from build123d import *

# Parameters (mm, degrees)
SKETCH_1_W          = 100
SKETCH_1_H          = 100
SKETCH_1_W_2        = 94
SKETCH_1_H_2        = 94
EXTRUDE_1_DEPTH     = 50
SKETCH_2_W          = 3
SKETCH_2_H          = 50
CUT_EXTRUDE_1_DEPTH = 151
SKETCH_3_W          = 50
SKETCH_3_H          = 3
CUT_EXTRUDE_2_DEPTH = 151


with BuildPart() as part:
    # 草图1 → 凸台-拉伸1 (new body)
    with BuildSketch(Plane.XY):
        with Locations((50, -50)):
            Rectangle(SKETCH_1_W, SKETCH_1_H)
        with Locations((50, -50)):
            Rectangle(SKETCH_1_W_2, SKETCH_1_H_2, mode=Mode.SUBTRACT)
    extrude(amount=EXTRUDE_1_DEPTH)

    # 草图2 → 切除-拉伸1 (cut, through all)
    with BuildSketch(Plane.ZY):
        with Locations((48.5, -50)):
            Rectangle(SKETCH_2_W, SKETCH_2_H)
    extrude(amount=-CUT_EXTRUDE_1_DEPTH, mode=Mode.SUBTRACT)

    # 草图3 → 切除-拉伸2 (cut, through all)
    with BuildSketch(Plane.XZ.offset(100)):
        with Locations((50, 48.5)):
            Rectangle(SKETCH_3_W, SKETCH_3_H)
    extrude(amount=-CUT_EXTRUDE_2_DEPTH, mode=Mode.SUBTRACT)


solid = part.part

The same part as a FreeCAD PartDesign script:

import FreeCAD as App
import Part
import Sketcher


def add_polygon(sketch, points):
    """Adds a closed chain of lines whose ends are joined by coincident constraints."""
    first, n = sketch.GeometryCount, len(points)
    for a, b in zip(points, points[1:] + points[:1]):
        sketch.addGeometry(Part.LineSegment(App.Vector(*a, 0), App.Vector(*b, 0)), False)
    for i in range(n):
        sketch.addConstraint(Sketcher.Constraint("Coincident", first + i, 2, first + (i + 1) % n, 1))

doc = App.newDocument("Part")
body = doc.addObject("PartDesign::Body", "Body")

# Sketch on XY plane
sketch1 = body.newObject("Sketcher::SketchObject", "Sketch")
sketch1.AttachmentSupport = (doc.getObject("XY_Plane"), [""])
sketch1.MapMode = "FlatFace"
add_polygon(sketch1, [(0, 0), (0, -100), (100, -100), (100, 0)])  # lines 0-3
add_polygon(sketch1, [(97, -97), (3, -97), (3, -3), (97, -3)])  # lines 4-7
sketch1.addConstraint([
    Sketcher.Constraint("Vertical", 0),
    Sketcher.Constraint("Horizontal", 1),
    Sketcher.Constraint("Vertical", 2),
    Sketcher.Constraint("Horizontal", 3),
    Sketcher.Constraint("Horizontal", 4),
    Sketcher.Constraint("Vertical", 5),
    Sketcher.Constraint("Horizontal", 6),
    Sketcher.Constraint("Vertical", 7),
    Sketcher.Constraint("Coincident", 3, 2, -1, 1),
    Sketcher.Constraint("Equal", 3, 0),
    Sketcher.Constraint("Equal", 6, 5),
    Sketcher.Constraint("DistanceX", 1, 1, 1, 2, 100.0),
    Sketcher.Constraint("DistanceX", 4, 2, 4, 1, 94.0),
    Sketcher.Constraint("DistanceX", -1, 1, 4, 2, 3.0),
    Sketcher.Constraint("DistanceY", 4, 2, -1, 1, 97.0),
])
pad1 = body.newObject("PartDesign::Pad", "Pad")
pad1.Profile = sketch1
pad1.Length = 50

# Sketch on YZ plane
sketch2 = body.newObject("Sketcher::SketchObject", "Sketch001")
sketch2.AttachmentSupport = (doc.getObject("YZ_Plane"), [""])
sketch2.MapMode = "FlatFace"
add_polygon(sketch2, [(-25, 47), (-75, 47), (-75, 50), (-25, 50)])  # lines 0-3
sketch2.addConstraint([
    Sketcher.Constraint("Horizontal", 0),
    Sketcher.Constraint("Vertical", 1),
    Sketcher.Constraint("Horizontal", 2),
    Sketcher.Constraint("Vertical", 3),
    Sketcher.Constraint("DistanceX", 0, 2, 0, 1, 50.0),
    Sketcher.Constraint("DistanceY", 1, 1, 1, 2, 3.0),
    Sketcher.Constraint("DistanceX", 0, 2, -1, 1, 75.0),
    Sketcher.Constraint("DistanceY", -1, 1, 0, 2, 47.0),
])
pocket1 = body.newObject("PartDesign::Pocket", "Pocket")
pocket1.Profile = sketch2
pocket1.Type = "ThroughAll"
pocket1.Reversed = True

# Sketch on XZ plane
sketch3 = body.newObject("Sketcher::SketchObject", "Sketch002")
sketch3.AttachmentSupport = (doc.getObject("XZ_Plane"), [""])
sketch3.MapMode = "FlatFace"
sketch3.AttachmentOffset = App.Placement(App.Vector(0, 0, 100), App.Rotation())
add_polygon(sketch3, [(25, 50), (25, 47), (75, 47), (75, 50)])  # lines 0-3
sketch3.addConstraint([
    Sketcher.Constraint("Vertical", 0),
    Sketcher.Constraint("Horizontal", 1),
    Sketcher.Constraint("Vertical", 2),
    Sketcher.Constraint("Horizontal", 3),
    Sketcher.Constraint("DistanceX", 1, 1, 1, 2, 50.0),
    Sketcher.Constraint("DistanceY", 0, 2, 0, 1, 3.0),
    Sketcher.Constraint("DistanceX", -1, 1, 0, 2, 25.0),
    Sketcher.Constraint("DistanceY", -1, 1, 0, 2, 47.0),
])
pocket2 = body.newObject("PartDesign::Pocket", "Pocket001")
pocket2.Profile = sketch3
pocket2.Type = "ThroughAll"

doc.recompute()
